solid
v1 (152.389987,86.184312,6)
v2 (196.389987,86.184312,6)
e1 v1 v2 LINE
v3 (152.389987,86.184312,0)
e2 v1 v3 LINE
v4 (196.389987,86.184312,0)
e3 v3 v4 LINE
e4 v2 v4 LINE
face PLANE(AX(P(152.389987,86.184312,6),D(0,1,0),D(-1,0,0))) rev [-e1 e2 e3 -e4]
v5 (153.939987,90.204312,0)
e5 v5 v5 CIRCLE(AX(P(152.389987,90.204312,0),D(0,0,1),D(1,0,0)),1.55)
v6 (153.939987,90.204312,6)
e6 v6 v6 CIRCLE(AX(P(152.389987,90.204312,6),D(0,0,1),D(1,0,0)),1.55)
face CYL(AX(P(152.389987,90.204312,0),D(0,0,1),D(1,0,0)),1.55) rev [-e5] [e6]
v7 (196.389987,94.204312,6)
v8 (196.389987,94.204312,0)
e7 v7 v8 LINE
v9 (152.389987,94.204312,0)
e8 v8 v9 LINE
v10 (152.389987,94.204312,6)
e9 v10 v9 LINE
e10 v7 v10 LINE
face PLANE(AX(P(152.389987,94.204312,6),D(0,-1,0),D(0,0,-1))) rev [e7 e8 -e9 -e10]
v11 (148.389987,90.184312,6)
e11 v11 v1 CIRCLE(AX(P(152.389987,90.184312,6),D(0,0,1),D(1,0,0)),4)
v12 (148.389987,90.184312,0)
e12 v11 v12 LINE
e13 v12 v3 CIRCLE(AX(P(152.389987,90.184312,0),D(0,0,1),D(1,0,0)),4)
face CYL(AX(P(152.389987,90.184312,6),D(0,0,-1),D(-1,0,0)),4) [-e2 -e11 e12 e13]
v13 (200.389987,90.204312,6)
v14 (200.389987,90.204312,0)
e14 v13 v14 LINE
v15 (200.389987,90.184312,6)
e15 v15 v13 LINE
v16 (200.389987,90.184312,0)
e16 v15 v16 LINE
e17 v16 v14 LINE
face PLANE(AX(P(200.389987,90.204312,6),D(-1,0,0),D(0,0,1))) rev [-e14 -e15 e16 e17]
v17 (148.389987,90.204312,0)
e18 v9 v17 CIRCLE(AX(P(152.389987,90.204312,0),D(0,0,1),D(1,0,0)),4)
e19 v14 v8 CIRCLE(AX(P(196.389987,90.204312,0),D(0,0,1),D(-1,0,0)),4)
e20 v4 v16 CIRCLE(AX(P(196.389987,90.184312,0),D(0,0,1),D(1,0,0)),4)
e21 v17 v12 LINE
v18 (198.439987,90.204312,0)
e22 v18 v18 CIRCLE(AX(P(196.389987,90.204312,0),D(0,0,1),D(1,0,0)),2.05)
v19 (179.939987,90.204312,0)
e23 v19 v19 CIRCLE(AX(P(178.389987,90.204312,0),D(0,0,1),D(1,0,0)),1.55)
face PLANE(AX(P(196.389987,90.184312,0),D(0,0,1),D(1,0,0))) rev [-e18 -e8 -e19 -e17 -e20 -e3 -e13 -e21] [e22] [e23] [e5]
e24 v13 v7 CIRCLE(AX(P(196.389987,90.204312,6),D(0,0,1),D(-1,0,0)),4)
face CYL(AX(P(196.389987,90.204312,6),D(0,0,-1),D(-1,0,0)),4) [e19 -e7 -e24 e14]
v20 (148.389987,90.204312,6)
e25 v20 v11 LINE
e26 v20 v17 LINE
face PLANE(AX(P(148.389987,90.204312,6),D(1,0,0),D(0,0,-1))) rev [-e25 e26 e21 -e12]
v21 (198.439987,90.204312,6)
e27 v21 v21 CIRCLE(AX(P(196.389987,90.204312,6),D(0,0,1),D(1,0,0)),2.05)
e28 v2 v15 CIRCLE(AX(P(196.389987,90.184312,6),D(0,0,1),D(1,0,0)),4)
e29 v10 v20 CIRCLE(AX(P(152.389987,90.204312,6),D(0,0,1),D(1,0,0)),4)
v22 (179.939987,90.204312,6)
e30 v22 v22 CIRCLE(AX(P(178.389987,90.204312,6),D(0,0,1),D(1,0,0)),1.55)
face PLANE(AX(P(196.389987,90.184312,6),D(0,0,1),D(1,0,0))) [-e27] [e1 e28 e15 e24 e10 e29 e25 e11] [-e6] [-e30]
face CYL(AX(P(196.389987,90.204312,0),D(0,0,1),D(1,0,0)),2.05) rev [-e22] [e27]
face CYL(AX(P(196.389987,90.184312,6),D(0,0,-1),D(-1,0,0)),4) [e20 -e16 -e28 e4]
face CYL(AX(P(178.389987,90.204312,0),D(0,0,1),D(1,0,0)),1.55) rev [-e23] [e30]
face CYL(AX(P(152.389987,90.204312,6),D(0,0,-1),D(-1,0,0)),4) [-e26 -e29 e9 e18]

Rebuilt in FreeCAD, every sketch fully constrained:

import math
import FreeCAD as App
import Part
import Sketcher
from FreeCAD import Vector

doc = App.newDocument("Part")
body = doc.addObject("PartDesign::Body", "Body")

# Sketch on XY plane
sketch1 = body.newObject("Sketcher::SketchObject", "Sketch")
sketch1.AttachmentSupport = (doc.getObject("XY_Plane"), [""])
sketch1.MapMode = "FlatFace"
sketch1.addGeometry(Part.LineSegment(Vector(148.39, 90.204, 0), Vector(148.39, 90.184, 0)), False)
sketch1.addGeometry(Part.ArcOfCircle(Part.Circle(Vector(152.39, 90.184, 0), Vector(0, 0, 1), 4), math.radians(180), math.radians(270)), False)
sketch1.addGeometry(Part.LineSegment(Vector(152.39, 86.184, 0), Vector(196.39, 86.184, 0)), False)
sketch1.addGeometry(Part.ArcOfCircle(Part.Circle(Vector(196.39, 90.184, 0), Vector(0, 0, 1), 4), math.radians(-90), math.radians(0)), False)
sketch1.addGeometry(Part.LineSegment(Vector(200.39, 90.184, 0), Vector(200.39, 90.204, 0)), False)
sketch1.addGeometry(Part.ArcOfCircle(Part.Circle(Vector(196.39, 90.204, 0), Vector(0, 0, 1), 4), math.radians(0), math.radians(90)), False)
sketch1.addGeometry(Part.LineSegment(Vector(196.39, 94.204, 0), Vector(152.39, 94.204, 0)), False)
sketch1.addGeometry(Part.ArcOfCircle(Part.Circle(Vector(152.39, 90.204, 0), Vector(0, 0, 1), 4), math.radians(90), math.radians(180)), False)
sketch1.addConstraint(Sketcher.Constraint("Tangent", 0, 2, 1, 1))
sketch1.addConstraint(Sketcher.Constraint("Tangent", 1, 2, 2, 1))
sketch1.addConstraint(Sketcher.Constraint("Tangent", 2, 2, 3, 1))
sketch1.addConstraint(Sketcher.Constraint("Tangent", 3, 2, 4, 1))
sketch1.addConstraint(Sketcher.Constraint("Tangent", 4, 2, 5, 1))
sketch1.addConstraint(Sketcher.Constraint("Tangent", 5, 2, 6, 1))
sketch1.addConstraint(Sketcher.Constraint("Tangent", 6, 2, 7, 1))
sketch1.addConstraint(Sketcher.Constraint("Tangent", 7, 2, 0, 1))
sketch1.addConstraint(Sketcher.Constraint("Vertical", 0))
sketch1.addConstraint(Sketcher.Constraint("Horizontal", 2))
sketch1.addConstraint(Sketcher.Constraint("Vertical", 4))
sketch1.addConstraint(Sketcher.Constraint("Horizontal", 6))
sketch1.addConstraint(Sketcher.Constraint("Equal", 1, 3))
sketch1.addConstraint(Sketcher.Constraint("Equal", 3, 5))
sketch1.addConstraint(Sketcher.Constraint("Equal", 5, 7))
sketch1.addConstraint(Sketcher.Constraint("Radius", 1, 4.0))
sketch1.addConstraint(Sketcher.Constraint("DistanceX", 2, 1, 2, 2, 44.0))
sketch1.addConstraint(Sketcher.Constraint("DistanceY", 0, 2, 0, 1, 0.02))
sketch1.addConstraint(Sketcher.Constraint("DistanceY", -1, 1, 1, 3, 90.184312))
sketch1.addConstraint(Sketcher.Constraint("DistanceX", -1, 1, 1, 3, 152.389987))
pad1 = body.newObject("PartDesign::Pad", "Pad")
pad1.Profile = sketch1
pad1.Length = 6

# Sketch on XY plane
sketch2 = body.newObject("Sketcher::SketchObject", "Sketch001")
sketch2.AttachmentSupport = (doc.getObject("XY_Plane"), [""])
sketch2.MapMode = "FlatFace"
sketch2.AttachmentOffset = App.Placement(Vector(0, 0, 6), App.Rotation())
sketch2.addGeometry(Part.Circle(Vector(196.4, 90.2, 0), Vector(0, 0, 1), 2), False)
sketch2.addGeometry(Part.Circle(Vector(178.4, 90.2, 0), Vector(0, 0, 1), 1.6), False)
sketch2.addGeometry(Part.Circle(Vector(152.4, 90.2, 0), Vector(0, 0, 1), 1.6), False)
sketch2.addConstraint(Sketcher.Constraint("Equal", 1, 2))
sketch2.addConstraint(Sketcher.Constraint("Horizontal", 0, 3, 1, 3))
sketch2.addConstraint(Sketcher.Constraint("Horizontal", 1, 3, 2, 3))
sketch2.addConstraint(Sketcher.Constraint("Diameter", 0, 4.1))
sketch2.addConstraint(Sketcher.Constraint("Diameter", 1, 3.1))
sketch2.addConstraint(Sketcher.Constraint("DistanceX", 1, 3, 0, 3, 18.0))
sketch2.addConstraint(Sketcher.Constraint("DistanceX", 2, 3, 1, 3, 26.0))
sketch2.addConstraint(Sketcher.Constraint("DistanceY", -1, 1, 0, 3, 90.204312))
sketch2.addConstraint(Sketcher.Constraint("DistanceX", -1, 1, 0, 3, 196.389987))
pocket1 = body.newObject("PartDesign::Pocket", "Pocket")
pocket1.Profile = sketch2
pocket1.Length = 6

doc.recompute()
